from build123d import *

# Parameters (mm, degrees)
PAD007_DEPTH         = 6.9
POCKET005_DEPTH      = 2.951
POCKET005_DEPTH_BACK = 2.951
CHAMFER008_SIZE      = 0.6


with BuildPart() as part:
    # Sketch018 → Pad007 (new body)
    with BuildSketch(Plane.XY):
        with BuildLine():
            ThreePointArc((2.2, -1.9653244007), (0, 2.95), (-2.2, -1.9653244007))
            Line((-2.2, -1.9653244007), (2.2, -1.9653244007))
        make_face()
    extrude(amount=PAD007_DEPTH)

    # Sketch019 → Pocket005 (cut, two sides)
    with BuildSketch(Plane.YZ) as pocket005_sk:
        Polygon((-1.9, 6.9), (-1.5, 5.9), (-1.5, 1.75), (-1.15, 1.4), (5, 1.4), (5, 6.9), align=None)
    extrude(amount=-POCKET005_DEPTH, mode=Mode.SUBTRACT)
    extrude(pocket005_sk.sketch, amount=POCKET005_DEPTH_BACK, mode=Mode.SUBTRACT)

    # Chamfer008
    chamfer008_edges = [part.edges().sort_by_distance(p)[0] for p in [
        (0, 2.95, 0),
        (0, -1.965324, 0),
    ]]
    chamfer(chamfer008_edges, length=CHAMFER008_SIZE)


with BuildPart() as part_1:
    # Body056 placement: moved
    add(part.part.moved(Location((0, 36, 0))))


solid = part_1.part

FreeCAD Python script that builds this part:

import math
import FreeCAD as App
import Part
import Sketcher
Q = App.Units.Quantity


def edges_at(feature, points):
    """Names of the edges that pass closest to the given points."""
    edges = feature.Shape.Edges
    near = lambda p: min(range(len(edges)), key=lambda i: edges[i].distToShape(Part.Vertex(*p))[0])
    return sorted({f"Edge{near(p) + 1}" for p in points})

doc = App.newDocument("Part")
params = doc.addObject("Spreadsheet::Sheet", "Params")
for row, (alias, value) in enumerate([
    ("sketch1_radius", "2.95 mm"),
    ("sketch1_width", "4.4 mm"),
    ("pad1_length", "6.9 mm"),
    ("sketch2_width", "6.9 mm"),
    ("sketch2_height", "5.5 mm"),
    ("sketch2_width2", "6.15 mm"),
    ("sketch2_height2", "4.15 mm"),
    ("chamfer_size", "0.6 mm"),
], start=1):
    params.set(f"A{row}", alias)
    params.set(f"B{row}", "=" + value)
    params.setAlias(f"B{row}", alias)

body = doc.addObject("PartDesign::Body", "Body")

# Sketch on XY plane
sketch1 = body.newObject("Sketcher::SketchObject", "Sketch")
sketch1.AttachmentSupport = (doc.getObject("XY_Plane"), [""])
sketch1.MapMode = "FlatFace"
sketch1.addGeometry([
    Part.ArcOfCircle(Part.Circle(App.Vector(0, 0, 0), App.Vector(0, 0, 1), 3), math.radians(-42), math.radians(222)),
    Part.LineSegment(App.Vector(-2.2, -2, 0), App.Vector(2.2, -2, 0)),
], False)
sketch1.addConstraint([
    Sketcher.Constraint("Coincident", 0, 1, 1, 2),
    Sketcher.Constraint("Coincident", 1, 1, 0, 2),
    Sketcher.Constraint("Horizontal", 1),
    Sketcher.Constraint("Coincident", 0, 3, -1, 1),
    Sketcher.Constraint("Radius", 0, Q("2.95 mm")),
    Sketcher.Constraint("DistanceX", 1, 1, 1, 2, Q("4.4 mm")),
])
sketch1.setExpression("Constraints[4]", "Params.sketch1_radius")
sketch1.setExpression("Constraints[5]", "Params.sketch1_width")
pad1 = body.newObject("PartDesign::Pad", "Pad")
pad1.Profile = sketch1
pad1.setExpression("Length", "Params.pad1_length")

# Sketch on YZ plane
sketch2 = body.newObject("Sketcher::SketchObject", "Sketch001")
sketch2.AttachmentSupport = (doc.getObject("YZ_Plane"), [""])
sketch2.MapMode = "FlatFace"
sketch2.addGeometry([
    Part.LineSegment(App.Vector(-1.9, 6.9, 0), App.Vector(-1.5, 5.9, 0)),  # 0
    Part.LineSegment(App.Vector(-1.5, 5.9, 0), App.Vector(-1.5, 1.75, 0)),  # 1
    Part.LineSegment(App.Vector(-1.5, 1.75, 0), App.Vector(-1.15, 1.4, 0)),  # 2
    Part.LineSegment(App.Vector(-1.15, 1.4, 0), App.Vector(5, 1.4, 0)),  # 3
    Part.LineSegment(App.Vector(5, 1.4, 0), App.Vector(5, 6.9, 0)),  # 4
    Part.LineSegment(App.Vector(5, 6.9, 0), App.Vector(-1.9, 6.9, 0)),  # 5
], False)
sketch2.addConstraint([
    Sketcher.Constraint("Coincident", 0, 2, 1, 1),
    Sketcher.Constraint("Coincident", 1, 2, 2, 1),
    Sketcher.Constraint("Coincident", 2, 2, 3, 1),
    Sketcher.Constraint("Coincident", 3, 2, 4, 1),
    Sketcher.Constraint("Coincident", 4, 2, 5, 1),
    Sketcher.Constraint("Coincident", 5, 2, 0, 1),
    Sketcher.Constraint("Vertical", 1),
    Sketcher.Constraint("Horizontal", 3),
    Sketcher.Constraint("Vertical", 4),
    Sketcher.Constraint("Horizontal", 5),
    Sketcher.Constraint("Angle", 2, Q("-45 deg")),
    Sketcher.Constraint("DistanceX", 5, 2, 5, 1, Q("6.9 mm")),
    Sketcher.Constraint("DistanceY", 4, 1, 4, 2, Q("5.5 mm")),
    Sketcher.Constraint("DistanceX", -1, 1, 3, 2, Q("5 mm")),
    Sketcher.Constraint("DistanceY", 0, 2, 4, 2, Q("1 mm")),
    Sketcher.Constraint("DistanceX", 3, 1, 3, 2, Q("6.15 mm")),
    Sketcher.Constraint("DistanceY", 1, 2, 1, 1, Q("4.15 mm")),
    Sketcher.Constraint("DistanceY", -1, 1, 0, 2, Q("5.9 mm")),
])
sketch2.setExpression("Constraints[11]", "Params.sketch2_width")
sketch2.setExpression("Constraints[12]", "Params.sketch2_height")
sketch2.setExpression("Constraints[15]", "Params.sketch2_width2")
sketch2.setExpression("Constraints[16]", "Params.sketch2_height2")
pocket1 = body.newObject("PartDesign::Pocket", "Pocket")
pocket1.Profile = sketch2
pocket1.Type = "ThroughAll"
pocket1.Midplane = True
doc.recompute()

chamfer = body.newObject("PartDesign::Chamfer", "Chamfer")
chamfer.Base = (pocket1, edges_at(pocket1, [(0, 2.95, 0), (0, -1.965, 0)]))
chamfer.setExpression("Size", "Params.chamfer_size")
body2 = doc.addObject("PartDesign::Body", "Body001")
doc.recompute()

body.Placement = App.Placement(App.Vector(0, 36, 0), App.Rotation(App.Vector(0, 0, 1), 0))
boolean = body2.newObject("PartDesign::Boolean", "Boolean")
boolean.Type = "Fuse"
boolean.addObjects([body])

doc.recompute()
